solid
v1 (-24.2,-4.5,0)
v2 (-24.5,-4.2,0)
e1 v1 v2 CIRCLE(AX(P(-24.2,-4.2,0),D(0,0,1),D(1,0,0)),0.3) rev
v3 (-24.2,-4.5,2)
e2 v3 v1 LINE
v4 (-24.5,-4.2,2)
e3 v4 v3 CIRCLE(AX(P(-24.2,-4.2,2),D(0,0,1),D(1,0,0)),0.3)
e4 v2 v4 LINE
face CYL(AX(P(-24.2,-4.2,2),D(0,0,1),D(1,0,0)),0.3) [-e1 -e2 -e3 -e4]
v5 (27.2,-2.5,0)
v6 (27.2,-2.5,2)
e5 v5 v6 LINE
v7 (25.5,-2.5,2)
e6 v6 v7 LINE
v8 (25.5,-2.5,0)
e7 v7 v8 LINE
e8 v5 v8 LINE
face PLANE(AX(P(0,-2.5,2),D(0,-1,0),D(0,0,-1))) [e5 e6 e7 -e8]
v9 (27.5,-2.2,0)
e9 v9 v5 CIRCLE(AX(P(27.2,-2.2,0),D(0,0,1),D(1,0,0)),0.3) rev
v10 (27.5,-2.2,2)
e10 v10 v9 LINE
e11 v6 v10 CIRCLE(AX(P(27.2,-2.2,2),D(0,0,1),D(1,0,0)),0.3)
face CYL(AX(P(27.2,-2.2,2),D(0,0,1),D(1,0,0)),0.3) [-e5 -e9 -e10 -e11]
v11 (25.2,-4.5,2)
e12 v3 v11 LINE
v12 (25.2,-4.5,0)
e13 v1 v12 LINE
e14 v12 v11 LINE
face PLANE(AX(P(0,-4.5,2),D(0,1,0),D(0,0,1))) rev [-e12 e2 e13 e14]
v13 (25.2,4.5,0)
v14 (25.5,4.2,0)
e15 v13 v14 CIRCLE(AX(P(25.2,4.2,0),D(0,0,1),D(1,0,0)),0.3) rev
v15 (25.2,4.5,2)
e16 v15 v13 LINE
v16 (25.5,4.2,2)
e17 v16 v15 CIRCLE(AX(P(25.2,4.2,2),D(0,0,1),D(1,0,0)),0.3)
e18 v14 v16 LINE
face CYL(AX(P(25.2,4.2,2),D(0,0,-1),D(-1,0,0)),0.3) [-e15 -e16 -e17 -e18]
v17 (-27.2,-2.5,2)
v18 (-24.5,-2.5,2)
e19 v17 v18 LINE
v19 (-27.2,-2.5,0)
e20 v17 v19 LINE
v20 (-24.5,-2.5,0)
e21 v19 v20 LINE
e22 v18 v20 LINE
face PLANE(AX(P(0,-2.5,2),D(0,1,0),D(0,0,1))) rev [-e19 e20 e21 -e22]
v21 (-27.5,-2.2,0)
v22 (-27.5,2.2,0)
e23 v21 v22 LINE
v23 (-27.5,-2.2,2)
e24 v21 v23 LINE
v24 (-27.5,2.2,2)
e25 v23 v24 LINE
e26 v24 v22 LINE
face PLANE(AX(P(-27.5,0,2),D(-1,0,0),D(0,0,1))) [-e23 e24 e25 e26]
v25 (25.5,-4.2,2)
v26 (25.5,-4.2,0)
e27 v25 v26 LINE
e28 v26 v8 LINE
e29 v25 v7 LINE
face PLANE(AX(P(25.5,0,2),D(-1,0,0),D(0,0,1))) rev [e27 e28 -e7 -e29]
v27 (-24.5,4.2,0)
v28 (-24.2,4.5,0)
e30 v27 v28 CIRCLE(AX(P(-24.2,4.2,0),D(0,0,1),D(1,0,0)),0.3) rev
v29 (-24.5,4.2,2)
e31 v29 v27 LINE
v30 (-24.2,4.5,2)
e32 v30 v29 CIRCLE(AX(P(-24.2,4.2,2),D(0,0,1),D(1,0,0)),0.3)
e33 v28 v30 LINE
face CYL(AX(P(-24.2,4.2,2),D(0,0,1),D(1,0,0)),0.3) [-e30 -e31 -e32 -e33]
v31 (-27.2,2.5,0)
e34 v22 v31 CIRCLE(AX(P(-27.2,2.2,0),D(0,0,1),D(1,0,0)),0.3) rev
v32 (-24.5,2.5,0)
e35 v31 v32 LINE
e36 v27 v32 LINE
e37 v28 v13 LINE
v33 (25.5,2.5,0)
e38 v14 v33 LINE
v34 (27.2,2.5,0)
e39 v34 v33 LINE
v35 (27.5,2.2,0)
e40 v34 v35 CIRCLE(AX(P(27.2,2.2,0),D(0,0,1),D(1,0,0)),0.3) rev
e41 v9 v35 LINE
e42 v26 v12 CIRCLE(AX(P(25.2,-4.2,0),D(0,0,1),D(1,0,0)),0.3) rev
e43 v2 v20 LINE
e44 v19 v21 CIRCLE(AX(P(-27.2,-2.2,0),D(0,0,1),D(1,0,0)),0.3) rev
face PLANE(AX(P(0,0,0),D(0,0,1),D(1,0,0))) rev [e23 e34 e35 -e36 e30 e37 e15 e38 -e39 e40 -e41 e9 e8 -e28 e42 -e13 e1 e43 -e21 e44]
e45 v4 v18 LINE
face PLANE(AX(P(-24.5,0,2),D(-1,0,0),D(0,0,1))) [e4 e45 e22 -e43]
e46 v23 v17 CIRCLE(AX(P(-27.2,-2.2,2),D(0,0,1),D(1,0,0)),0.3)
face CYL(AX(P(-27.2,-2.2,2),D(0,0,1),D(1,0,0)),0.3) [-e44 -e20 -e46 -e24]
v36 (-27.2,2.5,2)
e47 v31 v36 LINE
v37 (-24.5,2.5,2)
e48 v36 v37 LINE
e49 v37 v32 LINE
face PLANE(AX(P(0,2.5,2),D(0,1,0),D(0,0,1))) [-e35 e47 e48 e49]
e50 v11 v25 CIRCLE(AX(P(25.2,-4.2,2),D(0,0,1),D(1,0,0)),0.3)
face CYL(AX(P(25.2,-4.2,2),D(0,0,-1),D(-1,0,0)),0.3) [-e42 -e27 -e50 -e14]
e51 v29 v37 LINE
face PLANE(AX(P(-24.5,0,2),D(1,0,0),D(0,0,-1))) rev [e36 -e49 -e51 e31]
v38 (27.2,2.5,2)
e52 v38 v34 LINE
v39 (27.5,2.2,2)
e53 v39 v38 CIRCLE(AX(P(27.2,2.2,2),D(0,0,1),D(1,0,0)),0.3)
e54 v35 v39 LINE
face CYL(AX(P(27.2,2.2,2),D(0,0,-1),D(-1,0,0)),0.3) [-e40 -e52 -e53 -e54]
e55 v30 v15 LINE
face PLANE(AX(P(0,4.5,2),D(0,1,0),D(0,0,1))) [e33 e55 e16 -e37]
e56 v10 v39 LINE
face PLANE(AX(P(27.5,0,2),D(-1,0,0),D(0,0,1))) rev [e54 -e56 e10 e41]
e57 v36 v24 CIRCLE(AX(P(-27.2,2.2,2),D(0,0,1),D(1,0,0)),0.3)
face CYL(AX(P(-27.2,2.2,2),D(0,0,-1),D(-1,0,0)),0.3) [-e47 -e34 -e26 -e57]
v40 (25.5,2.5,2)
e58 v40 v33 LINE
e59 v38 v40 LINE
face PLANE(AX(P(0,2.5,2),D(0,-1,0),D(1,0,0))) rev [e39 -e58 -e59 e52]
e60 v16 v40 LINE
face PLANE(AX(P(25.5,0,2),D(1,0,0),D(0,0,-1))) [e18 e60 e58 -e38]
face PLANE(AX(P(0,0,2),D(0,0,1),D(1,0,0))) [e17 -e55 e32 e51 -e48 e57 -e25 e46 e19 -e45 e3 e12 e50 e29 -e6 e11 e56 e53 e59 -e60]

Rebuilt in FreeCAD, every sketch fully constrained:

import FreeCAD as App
import Part
import Sketcher


def edges_at(feature, points):
    """Names of the edges that pass closest to the given points."""
    edges = feature.Shape.Edges
    near = lambda p: min(range(len(edges)), key=lambda i: edges[i].distToShape(Part.Vertex(*p))[0])
    return sorted({f"Edge{near(p) + 1}" for p in points})


def add_polygon(sketch, points):
    """Adds a closed chain of lines whose ends are joined by coincident constraints."""
    first, n = sketch.GeometryCount, len(points)
    for a, b in zip(points, points[1:] + points[:1]):
        sketch.addGeometry(Part.LineSegment(App.Vector(*a, 0), App.Vector(*b, 0)), False)
    for i in range(n):
        sketch.addConstraint(Sketcher.Constraint("Coincident", first + i, 2, first + (i + 1) % n, 1))

doc = App.newDocument("Part")
body = doc.addObject("PartDesign::Body", "Body")

# Sketch on XY plane
sketch1 = doc.addObject("Sketcher::SketchObject", "Sketch")
body.addObject(sketch1)
sketch1.AttachmentSupport = (doc.XY_Plane, [""])
sketch1.MapMode = "FlatFace"
add_polygon(sketch1, [(-24.5, -2.5), (-24.5, -4.5), (25.5, -4.5), (25.5, -2.5), (27.5, -2.5), (27.5, 2.5), (25.5, 2.5), (25.5, 4.5), (-24.5, 4.5), (-24.5, 2.5), (-27.5, 2.5), (-27.5, -2.5)])  # lines 0-11
sketch1.addConstraint(Sketcher.Constraint("Vertical", 0))
sketch1.addConstraint(Sketcher.Constraint("Horizontal", 1))
sketch1.addConstraint(Sketcher.Constraint("Vertical", 2))
sketch1.addConstraint(Sketcher.Constraint("Horizontal", 3))
sketch1.addConstraint(Sketcher.Constraint("Vertical", 4))
sketch1.addConstraint(Sketcher.Constraint("Horizontal", 5))
sketch1.addConstraint(Sketcher.Constraint("Vertical", 6))
sketch1.addConstraint(Sketcher.Constraint("Horizontal", 7))
sketch1.addConstraint(Sketcher.Constraint("Vertical", 8))
sketch1.addConstraint(Sketcher.Constraint("Horizontal", 9))
sketch1.addConstraint(Sketcher.Constraint("Vertical", 10))
sketch1.addConstraint(Sketcher.Constraint("Horizontal", 11))
sketch1.addConstraint(Sketcher.Constraint("Symmetric", 3, 2, 9, 2, -1, 1))
sketch1.addConstraint(Sketcher.Constraint("Symmetric", 2, 2, 5, 2, -1))
sketch1.addConstraint(Sketcher.Constraint("Symmetric", 0, 2, 7, 2, -1))
sketch1.addConstraint(Sketcher.Constraint("Horizontal", 3, 2, 10, 2))
sketch1.addConstraint(Sketcher.Constraint("Equal", 5, 0))
sketch1.addConstraint(Sketcher.Constraint("DistanceX", 1, 1, 1, 2, 50.0))
sketch1.addConstraint(Sketcher.Constraint("DistanceX", 3, 1, 3, 2, 2.0))
sketch1.addConstraint(Sketcher.Constraint("DistanceX", 9, 2, 9, 1, 3.0))
sketch1.addConstraint(Sketcher.Constraint("DistanceY", 4, 1, 4, 2, 5.0))
pad1 = doc.addObject("PartDesign::Pad", "Pad")
body.addObject(pad1)
pad1.Profile = sketch1
pad1.Length = 2
doc.recompute()

fillet = doc.addObject("PartDesign::Fillet", "Fillet")
body.addObject(fillet)
fillet.Base = (pad1, edges_at(pad1, [(-27.5, -2.5, 1)]))
fillet.Radius = 0.3
doc.recompute()

fillet2 = doc.addObject("PartDesign::Fillet", "Fillet001")
body.addObject(fillet2)
fillet2.Base = (fillet, edges_at(fillet, [(-24.5, -4.5, 1)]))
fillet2.Radius = 0.3
doc.recompute()

fillet3 = doc.addObject("PartDesign::Fillet", "Fillet002")
body.addObject(fillet3)
fillet3.Base = (fillet2, edges_at(fillet2, [(-24.5, 4.5, 1)]))
fillet3.Radius = 0.3
doc.recompute()

fillet4 = doc.addObject("PartDesign::Fillet", "Fillet003")
body.addObject(fillet4)
fillet4.Base = (fillet3, edges_at(fillet3, [(25.5, -4.5, 1)]))
fillet4.Radius = 0.3
doc.recompute()

fillet5 = doc.addObject("PartDesign::Fillet", "Fillet004")
body.addObject(fillet5)
fillet5.Base = (fillet4, edges_at(fillet4, [(25.5, 4.5, 1), (27.5, 2.5, 1), (27.5, -2.5, 1)]))
fillet5.Radius = 0.3
doc.recompute()

fillet6 = doc.addObject("PartDesign::Fillet", "Fillet005")
body.addObject(fillet6)
fillet6.Base = (fillet5, edges_at(fillet5, [(-27.5, 2.5, 1)]))
fillet6.Radius = 0.3

doc.recompute()
